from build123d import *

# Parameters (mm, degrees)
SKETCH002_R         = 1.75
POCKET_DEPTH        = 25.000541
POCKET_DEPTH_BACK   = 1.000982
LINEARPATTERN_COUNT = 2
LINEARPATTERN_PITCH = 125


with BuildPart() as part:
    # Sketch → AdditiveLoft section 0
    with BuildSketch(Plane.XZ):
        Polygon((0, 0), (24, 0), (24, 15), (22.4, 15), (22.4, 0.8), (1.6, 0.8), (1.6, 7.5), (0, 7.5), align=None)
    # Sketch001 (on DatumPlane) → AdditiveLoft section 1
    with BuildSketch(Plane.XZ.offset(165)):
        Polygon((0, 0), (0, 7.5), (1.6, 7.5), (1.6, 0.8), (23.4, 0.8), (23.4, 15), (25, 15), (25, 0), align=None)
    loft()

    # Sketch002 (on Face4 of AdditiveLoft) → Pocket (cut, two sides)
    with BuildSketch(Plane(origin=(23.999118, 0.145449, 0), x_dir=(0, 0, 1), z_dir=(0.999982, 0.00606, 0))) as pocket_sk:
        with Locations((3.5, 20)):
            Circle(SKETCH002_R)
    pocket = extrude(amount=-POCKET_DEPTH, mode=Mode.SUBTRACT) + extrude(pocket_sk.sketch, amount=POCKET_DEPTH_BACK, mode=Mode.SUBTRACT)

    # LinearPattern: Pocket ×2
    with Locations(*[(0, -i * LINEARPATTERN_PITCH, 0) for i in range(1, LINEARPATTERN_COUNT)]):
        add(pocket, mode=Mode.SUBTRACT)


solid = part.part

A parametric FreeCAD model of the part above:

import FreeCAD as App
import Part
import Sketcher

doc = App.newDocument("Part")
params = doc.addObject("Spreadsheet::Sheet", "Params")
for row, (alias, value) in enumerate([
    ("sketch1_width", "24 mm"),
    ("sketch1_height", "15 mm"),
    ("sketch1_width2", "1.6 mm"),
    ("sketch1_height2", "14.2 mm"),
    ("sketch1_height3", "6.7 mm"),
    ("sketch2_width", "25 mm"),
    ("sketch2_height", "15 mm"),
    ("sketch2_width2", "1.6 mm"),
    ("sketch2_height2", "7.5 mm"),
    ("sketch2_height3", "14.2 mm"),
    ("sketch3_diameter", "3.5 mm"),
    ("linearpattern_pitch", "125 mm"),
], start=1):
    params.set(f"A{row}", alias)
    params.set(f"B{row}", "=" + value)
    params.setAlias(f"B{row}", alias)

body = doc.addObject("PartDesign::Body", "Body")

sketch1 = body.newObject("Sketcher::SketchObject", "Sketch")
sketch1.AttachmentSupport = (doc.getObject("XZ_Plane"), [""])
sketch1.MapMode = "FlatFace"
sketch1.addGeometry(Part.LineSegment(App.Vector(0, 0, 0), App.Vector(24, 0, 0)), False)
sketch1.addGeometry(Part.LineSegment(App.Vector(24, 0, 0), App.Vector(24, 15, 0)), False)
sketch1.addGeometry(Part.LineSegment(App.Vector(24, 15, 0), App.Vector(22.4, 15, 0)), False)
sketch1.addGeometry(Part.LineSegment(App.Vector(22.4, 15, 0), App.Vector(22.4, 0.8, 0)), False)
sketch1.addGeometry(Part.LineSegment(App.Vector(22.4, 0.8, 0), App.Vector(1.6, 0.8, 0)), False)
sketch1.addGeometry(Part.LineSegment(App.Vector(1.6, 0.8, 0), App.Vector(1.6, 7.5, 0)), False)
sketch1.addGeometry(Part.LineSegment(App.Vector(1.6, 7.5, 0), App.Vector(0, 7.5, 0)), False)
sketch1.addGeometry(Part.LineSegment(App.Vector(0, 7.5, 0), App.Vector(0, 0, 0)), False)
sketch1.addConstraint(Sketcher.Constraint("Coincident", 0, 2, 1, 1))
sketch1.addConstraint(Sketcher.Constraint("Coincident", 1, 2, 2, 1))
sketch1.addConstraint(Sketcher.Constraint("Coincident", 2, 2, 3, 1))
sketch1.addConstraint(Sketcher.Constraint("Coincident", 3, 2, 4, 1))
sketch1.addConstraint(Sketcher.Constraint("Coincident", 4, 2, 5, 1))
sketch1.addConstraint(Sketcher.Constraint("Coincident", 5, 2, 6, 1))
sketch1.addConstraint(Sketcher.Constraint("Coincident", 6, 2, 7, 1))
sketch1.addConstraint(Sketcher.Constraint("Coincident", 7, 2, 0, 1))
sketch1.addConstraint(Sketcher.Constraint("Horizontal", 0))
sketch1.addConstraint(Sketcher.Constraint("Vertical", 1))
sketch1.addConstraint(Sketcher.Constraint("Horizontal", 2))
sketch1.addConstraint(Sketcher.Constraint("Vertical", 3))
sketch1.addConstraint(Sketcher.Constraint("Horizontal", 4))
sketch1.addConstraint(Sketcher.Constraint("Vertical", 5))
sketch1.addConstraint(Sketcher.Constraint("Horizontal", 6))
sketch1.addConstraint(Sketcher.Constraint("Vertical", 7))
sketch1.addConstraint(Sketcher.Constraint("Coincident", 7, 2, -1, 1))
sketch1.addConstraint(Sketcher.Constraint("Equal", 2, 6))
sketch1.addConstraint(Sketcher.Constraint("DistanceX", 0, 1, 0, 2, 24.0))
sketch1.addConstraint(Sketcher.Constraint("DistanceY", 1, 1, 1, 2, 15.0))
sketch1.addConstraint(Sketcher.Constraint("DistanceX", 2, 2, 2, 1, 1.6))
sketch1.addConstraint(Sketcher.Constraint("DistanceY", 3, 2, 3, 1, 14.2))
sketch1.addConstraint(Sketcher.Constraint("DistanceY", 5, 1, 5, 2, 6.7))
sketch1.setExpression("Constraints[18]", "Params.sketch1_width")
sketch1.setExpression("Constraints[19]", "Params.sketch1_height")
sketch1.setExpression("Constraints[20]", "Params.sketch1_width2")
sketch1.setExpression("Constraints[21]", "Params.sketch1_height2")
sketch1.setExpression("Constraints[22]", "Params.sketch1_height3")

sketch2 = body.newObject("Sketcher::SketchObject", "Sketch001")
sketch2.AttachmentSupport = (doc.getObject("XZ_Plane"), [""])
sketch2.MapMode = "FlatFace"
sketch2.AttachmentOffset = App.Placement(App.Vector(0, 0, 165), App.Rotation())
sketch2.addGeometry(Part.LineSegment(App.Vector(0, 7.5, 0), App.Vector(0, 0, 0)), False)
sketch2.addGeometry(Part.LineSegment(App.Vector(0, 0, 0), App.Vector(25, 0, 0)), False)
sketch2.addGeometry(Part.LineSegment(App.Vector(25, 0, 0), App.Vector(25, 15, 0)), False)
sketch2.addGeometry(Part.LineSegment(App.Vector(25, 15, 0), App.Vector(23.4, 15, 0)), False)
sketch2.addGeometry(Part.LineSegment(App.Vector(23.4, 15, 0), App.Vector(23.4, 0.8, 0)), False)
sketch2.addGeometry(Part.LineSegment(App.Vector(23.4, 0.8, 0), App.Vector(1.6, 0.8, 0)), False)
sketch2.addGeometry(Part.LineSegment(App.Vector(1.6, 0.8, 0), App.Vector(1.6, 7.5, 0)), False)
sketch2.addGeometry(Part.LineSegment(App.Vector(1.6, 7.5, 0), App.Vector(0, 7.5, 0)), False)
sketch2.addConstraint(Sketcher.Constraint("Coincident", 0, 2, 1, 1))
sketch2.addConstraint(Sketcher.Constraint("Coincident", 1, 2, 2, 1))
sketch2.addConstraint(Sketcher.Constraint("Coincident", 2, 2, 3, 1))
sketch2.addConstraint(Sketcher.Constraint("Coincident", 3, 2, 4, 1))
sketch2.addConstraint(Sketcher.Constraint("Coincident", 4, 2, 5, 1))
sketch2.addConstraint(Sketcher.Constraint("Coincident", 5, 2, 6, 1))
sketch2.addConstraint(Sketcher.Constraint("Coincident", 6, 2, 7, 1))
sketch2.addConstraint(Sketcher.Constraint("Coincident", 7, 2, 0, 1))
sketch2.addConstraint(Sketcher.Constraint("Vertical", 0))
sketch2.addConstraint(Sketcher.Constraint("Horizontal", 1))
sketch2.addConstraint(Sketcher.Constraint("Vertical", 2))
sketch2.addConstraint(Sketcher.Constraint("Horizontal", 3))
sketch2.addConstraint(Sketcher.Constraint("Vertical", 4))
sketch2.addConstraint(Sketcher.Constraint("Horizontal", 5))
sketch2.addConstraint(Sketcher.Constraint("Vertical", 6))
sketch2.addConstraint(Sketcher.Constraint("Horizontal", 7))
sketch2.addConstraint(Sketcher.Constraint("Coincident", 0, 2, -1, 1))
sketch2.addConstraint(Sketcher.Constraint("Equal", 3, 7))
sketch2.addConstraint(Sketcher.Constraint("DistanceX", 1, 1, 1, 2, 25.0))
sketch2.addConstraint(Sketcher.Constraint("DistanceY", 2, 1, 2, 2, 15.0))
sketch2.addConstraint(Sketcher.Constraint("DistanceX", 3, 2, 3, 1, 1.6))
sketch2.addConstraint(Sketcher.Constraint("DistanceY", 0, 2, 0, 1, 7.5))
sketch2.addConstraint(Sketcher.Constraint("DistanceY", 4, 2, 4, 1, 14.2))
sketch2.setExpression("Constraints[18]", "Params.sketch2_width")
sketch2.setExpression("Constraints[19]", "Params.sketch2_height")
sketch2.setExpression("Constraints[20]", "Params.sketch2_width2")
sketch2.setExpression("Constraints[21]", "Params.sketch2_height2")
sketch2.setExpression("Constraints[22]", "Params.sketch2_height3")

additiveloft = body.newObject("PartDesign::AdditiveLoft", "AdditiveLoft")
additiveloft.Profile = sketch1
additiveloft.Sections = [sketch2]

sketch3 = body.newObject("Sketcher::SketchObject", "Sketch002")
sketch3.Placement = App.Placement(App.Vector(23.999118, 0.145449, 0), App.Rotation(App.Vector(0, 0, 1), App.Vector(0.006059998, -0.999981638, 0), App.Vector(0.999981638, 0.006059998, 0), "ZXY"))
sketch3.addGeometry(Part.Circle(App.Vector(3.5, 20, 0), App.Vector(0, 0, 1), 1.75), False)
sketch3.addConstraint(Sketcher.Constraint("Diameter", 0, 3.5))
sketch3.addConstraint(Sketcher.Constraint("DistanceY", -1, 1, 0, 3, 20.0))
sketch3.addConstraint(Sketcher.Constraint("DistanceX", -1, 1, 0, 3, 3.5))
sketch3.setExpression("Constraints[0]", "Params.sketch3_diameter")
pocket1 = body.newObject("PartDesign::Pocket", "Pocket")
pocket1.Profile = sketch3
pocket1.Type = "ThroughAll"
pocket1.Midplane = True
doc.recompute()

linearpattern = body.newObject("PartDesign::LinearPattern", "LinearPattern")
linearpattern.Originals = [pocket1]
linearpattern.Direction = (doc.getObject("Y_Axis"), [""])
linearpattern.Mode = "offset"
linearpattern.setExpression("Offset", "Params.linearpattern_pitch")
linearpattern.Occurrences = 2
linearpattern.Reversed = True
body.Tip = linearpattern

doc.recompute()
